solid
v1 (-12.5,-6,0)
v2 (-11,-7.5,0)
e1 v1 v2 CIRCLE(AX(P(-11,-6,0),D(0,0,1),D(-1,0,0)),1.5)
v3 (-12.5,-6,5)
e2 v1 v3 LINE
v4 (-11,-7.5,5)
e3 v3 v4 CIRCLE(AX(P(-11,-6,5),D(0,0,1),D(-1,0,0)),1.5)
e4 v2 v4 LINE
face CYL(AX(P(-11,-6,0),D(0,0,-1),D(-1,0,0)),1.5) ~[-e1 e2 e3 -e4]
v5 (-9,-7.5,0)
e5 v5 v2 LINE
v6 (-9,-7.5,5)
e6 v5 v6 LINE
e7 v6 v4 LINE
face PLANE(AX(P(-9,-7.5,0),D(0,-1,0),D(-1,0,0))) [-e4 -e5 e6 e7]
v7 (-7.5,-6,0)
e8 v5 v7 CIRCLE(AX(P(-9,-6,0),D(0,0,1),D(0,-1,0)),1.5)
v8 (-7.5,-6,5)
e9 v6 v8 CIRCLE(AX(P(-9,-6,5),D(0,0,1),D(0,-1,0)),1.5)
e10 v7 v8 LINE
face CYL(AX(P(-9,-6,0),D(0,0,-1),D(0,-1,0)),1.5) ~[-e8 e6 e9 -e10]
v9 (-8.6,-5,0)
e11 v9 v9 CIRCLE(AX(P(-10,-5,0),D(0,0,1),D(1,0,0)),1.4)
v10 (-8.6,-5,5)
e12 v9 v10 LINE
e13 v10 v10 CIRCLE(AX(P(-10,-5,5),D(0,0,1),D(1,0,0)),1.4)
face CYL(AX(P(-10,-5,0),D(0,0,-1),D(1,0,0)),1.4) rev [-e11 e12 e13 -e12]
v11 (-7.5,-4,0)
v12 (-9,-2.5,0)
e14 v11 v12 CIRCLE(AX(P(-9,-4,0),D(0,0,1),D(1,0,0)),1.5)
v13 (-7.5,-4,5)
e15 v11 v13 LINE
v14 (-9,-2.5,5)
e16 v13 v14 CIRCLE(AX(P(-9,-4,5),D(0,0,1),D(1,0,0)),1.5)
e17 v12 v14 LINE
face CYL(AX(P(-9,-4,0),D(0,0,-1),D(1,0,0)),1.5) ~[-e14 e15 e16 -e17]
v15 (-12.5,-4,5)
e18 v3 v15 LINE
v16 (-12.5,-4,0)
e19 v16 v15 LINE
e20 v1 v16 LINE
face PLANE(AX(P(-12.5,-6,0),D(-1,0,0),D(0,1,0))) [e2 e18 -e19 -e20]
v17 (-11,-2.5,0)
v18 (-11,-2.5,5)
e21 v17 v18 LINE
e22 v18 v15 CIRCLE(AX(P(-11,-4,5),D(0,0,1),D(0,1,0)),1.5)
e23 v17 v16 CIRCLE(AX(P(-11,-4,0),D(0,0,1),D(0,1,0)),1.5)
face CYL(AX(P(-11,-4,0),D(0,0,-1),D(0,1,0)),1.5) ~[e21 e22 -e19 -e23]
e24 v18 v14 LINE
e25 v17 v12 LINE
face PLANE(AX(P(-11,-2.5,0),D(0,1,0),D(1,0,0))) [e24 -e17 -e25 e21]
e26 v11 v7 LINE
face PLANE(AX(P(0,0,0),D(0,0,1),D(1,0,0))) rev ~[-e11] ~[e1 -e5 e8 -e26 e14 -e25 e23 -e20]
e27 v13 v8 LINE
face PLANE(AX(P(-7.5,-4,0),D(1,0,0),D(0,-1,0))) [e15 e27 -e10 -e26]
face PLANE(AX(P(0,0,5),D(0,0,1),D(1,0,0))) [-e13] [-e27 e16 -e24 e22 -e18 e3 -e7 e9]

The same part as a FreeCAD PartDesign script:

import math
import FreeCAD as App
import Part
import Sketcher
from FreeCAD import Vector

doc = App.newDocument("Part")
body = doc.addObject("PartDesign::Body", "Body")

# Sketch on XY plane
sketch1 = body.newObject("Sketcher::SketchObject", "Sketch")
sketch1.AttachmentSupport = (doc.getObject("XY_Plane"), [""])
sketch1.MapMode = "FlatFace"
sketch1.addGeometry([
    Part.LineSegment(Vector(-9, -2.5, 0), Vector(-11, -2.5, 0)),  # 0
    Part.ArcOfCircle(Part.Circle(Vector(-11, -4, 0), Vector(0, 0, 1), 1.5), math.radians(90), math.radians(180)),  # 1
    Part.LineSegment(Vector(-12.5, -4, 0), Vector(-12.5, -6, 0)),  # 2
    Part.ArcOfCircle(Part.Circle(Vector(-11, -6, 0), Vector(0, 0, 1), 1.5), math.radians(180), math.radians(270)),  # 3
    Part.LineSegment(Vector(-11, -7.5, 0), Vector(-9, -7.5, 0)),  # 4
    Part.ArcOfCircle(Part.Circle(Vector(-9, -6, 0), Vector(0, 0, 1), 1.5), math.radians(-90), math.radians(0)),  # 5
    Part.LineSegment(Vector(-7.5, -6, 0), Vector(-7.5, -4, 0)),  # 6
    Part.ArcOfCircle(Part.Circle(Vector(-9, -4, 0), Vector(0, 0, 1), 1.5), math.radians(0), math.radians(90)),  # 7
    Part.Circle(Vector(-10, -5, 0), Vector(0, 0, 1), 1.4),  # 8
], False)
sketch1.addConstraint([
    Sketcher.Constraint("Tangent", 0, 2, 1, 1),
    Sketcher.Constraint("Tangent", 1, 2, 2, 1),
    Sketcher.Constraint("Tangent", 2, 2, 3, 1),
    Sketcher.Constraint("Tangent", 3, 2, 4, 1),
    Sketcher.Constraint("Tangent", 4, 2, 5, 1),
    Sketcher.Constraint("Tangent", 5, 2, 6, 1),
    Sketcher.Constraint("Tangent", 6, 2, 7, 1),
    Sketcher.Constraint("Tangent", 7, 2, 0, 1),
    Sketcher.Constraint("Horizontal", 0),
    Sketcher.Constraint("Vertical", 2),
    Sketcher.Constraint("Horizontal", 4),
    Sketcher.Constraint("Vertical", 6),
    Sketcher.Constraint("Equal", 1, 3),
    Sketcher.Constraint("Equal", 3, 5),
    Sketcher.Constraint("Equal", 5, 7),
    Sketcher.Constraint("Equal", 4, 2),
    Sketcher.Constraint("Radius", 1, 1.5),
    Sketcher.Constraint("DistanceY", 8, 3, -1, 1, 5.0),
    Sketcher.Constraint("Diameter", 8, 2.8),
    Sketcher.Constraint("DistanceX", 0, 2, 0, 1, 2.0),
    Sketcher.Constraint("DistanceX", 1, 3, -1, 1, 11.0),
    Sketcher.Constraint("DistanceY", 1, 3, -1, 1, 4.0),
    Sketcher.Constraint("DistanceX", 8, 3, -1, 1, 10.0),
])
pad1 = body.newObject("PartDesign::Pad", "Pad")
pad1.Profile = sketch1
pad1.Length = 5

doc.recompute()
